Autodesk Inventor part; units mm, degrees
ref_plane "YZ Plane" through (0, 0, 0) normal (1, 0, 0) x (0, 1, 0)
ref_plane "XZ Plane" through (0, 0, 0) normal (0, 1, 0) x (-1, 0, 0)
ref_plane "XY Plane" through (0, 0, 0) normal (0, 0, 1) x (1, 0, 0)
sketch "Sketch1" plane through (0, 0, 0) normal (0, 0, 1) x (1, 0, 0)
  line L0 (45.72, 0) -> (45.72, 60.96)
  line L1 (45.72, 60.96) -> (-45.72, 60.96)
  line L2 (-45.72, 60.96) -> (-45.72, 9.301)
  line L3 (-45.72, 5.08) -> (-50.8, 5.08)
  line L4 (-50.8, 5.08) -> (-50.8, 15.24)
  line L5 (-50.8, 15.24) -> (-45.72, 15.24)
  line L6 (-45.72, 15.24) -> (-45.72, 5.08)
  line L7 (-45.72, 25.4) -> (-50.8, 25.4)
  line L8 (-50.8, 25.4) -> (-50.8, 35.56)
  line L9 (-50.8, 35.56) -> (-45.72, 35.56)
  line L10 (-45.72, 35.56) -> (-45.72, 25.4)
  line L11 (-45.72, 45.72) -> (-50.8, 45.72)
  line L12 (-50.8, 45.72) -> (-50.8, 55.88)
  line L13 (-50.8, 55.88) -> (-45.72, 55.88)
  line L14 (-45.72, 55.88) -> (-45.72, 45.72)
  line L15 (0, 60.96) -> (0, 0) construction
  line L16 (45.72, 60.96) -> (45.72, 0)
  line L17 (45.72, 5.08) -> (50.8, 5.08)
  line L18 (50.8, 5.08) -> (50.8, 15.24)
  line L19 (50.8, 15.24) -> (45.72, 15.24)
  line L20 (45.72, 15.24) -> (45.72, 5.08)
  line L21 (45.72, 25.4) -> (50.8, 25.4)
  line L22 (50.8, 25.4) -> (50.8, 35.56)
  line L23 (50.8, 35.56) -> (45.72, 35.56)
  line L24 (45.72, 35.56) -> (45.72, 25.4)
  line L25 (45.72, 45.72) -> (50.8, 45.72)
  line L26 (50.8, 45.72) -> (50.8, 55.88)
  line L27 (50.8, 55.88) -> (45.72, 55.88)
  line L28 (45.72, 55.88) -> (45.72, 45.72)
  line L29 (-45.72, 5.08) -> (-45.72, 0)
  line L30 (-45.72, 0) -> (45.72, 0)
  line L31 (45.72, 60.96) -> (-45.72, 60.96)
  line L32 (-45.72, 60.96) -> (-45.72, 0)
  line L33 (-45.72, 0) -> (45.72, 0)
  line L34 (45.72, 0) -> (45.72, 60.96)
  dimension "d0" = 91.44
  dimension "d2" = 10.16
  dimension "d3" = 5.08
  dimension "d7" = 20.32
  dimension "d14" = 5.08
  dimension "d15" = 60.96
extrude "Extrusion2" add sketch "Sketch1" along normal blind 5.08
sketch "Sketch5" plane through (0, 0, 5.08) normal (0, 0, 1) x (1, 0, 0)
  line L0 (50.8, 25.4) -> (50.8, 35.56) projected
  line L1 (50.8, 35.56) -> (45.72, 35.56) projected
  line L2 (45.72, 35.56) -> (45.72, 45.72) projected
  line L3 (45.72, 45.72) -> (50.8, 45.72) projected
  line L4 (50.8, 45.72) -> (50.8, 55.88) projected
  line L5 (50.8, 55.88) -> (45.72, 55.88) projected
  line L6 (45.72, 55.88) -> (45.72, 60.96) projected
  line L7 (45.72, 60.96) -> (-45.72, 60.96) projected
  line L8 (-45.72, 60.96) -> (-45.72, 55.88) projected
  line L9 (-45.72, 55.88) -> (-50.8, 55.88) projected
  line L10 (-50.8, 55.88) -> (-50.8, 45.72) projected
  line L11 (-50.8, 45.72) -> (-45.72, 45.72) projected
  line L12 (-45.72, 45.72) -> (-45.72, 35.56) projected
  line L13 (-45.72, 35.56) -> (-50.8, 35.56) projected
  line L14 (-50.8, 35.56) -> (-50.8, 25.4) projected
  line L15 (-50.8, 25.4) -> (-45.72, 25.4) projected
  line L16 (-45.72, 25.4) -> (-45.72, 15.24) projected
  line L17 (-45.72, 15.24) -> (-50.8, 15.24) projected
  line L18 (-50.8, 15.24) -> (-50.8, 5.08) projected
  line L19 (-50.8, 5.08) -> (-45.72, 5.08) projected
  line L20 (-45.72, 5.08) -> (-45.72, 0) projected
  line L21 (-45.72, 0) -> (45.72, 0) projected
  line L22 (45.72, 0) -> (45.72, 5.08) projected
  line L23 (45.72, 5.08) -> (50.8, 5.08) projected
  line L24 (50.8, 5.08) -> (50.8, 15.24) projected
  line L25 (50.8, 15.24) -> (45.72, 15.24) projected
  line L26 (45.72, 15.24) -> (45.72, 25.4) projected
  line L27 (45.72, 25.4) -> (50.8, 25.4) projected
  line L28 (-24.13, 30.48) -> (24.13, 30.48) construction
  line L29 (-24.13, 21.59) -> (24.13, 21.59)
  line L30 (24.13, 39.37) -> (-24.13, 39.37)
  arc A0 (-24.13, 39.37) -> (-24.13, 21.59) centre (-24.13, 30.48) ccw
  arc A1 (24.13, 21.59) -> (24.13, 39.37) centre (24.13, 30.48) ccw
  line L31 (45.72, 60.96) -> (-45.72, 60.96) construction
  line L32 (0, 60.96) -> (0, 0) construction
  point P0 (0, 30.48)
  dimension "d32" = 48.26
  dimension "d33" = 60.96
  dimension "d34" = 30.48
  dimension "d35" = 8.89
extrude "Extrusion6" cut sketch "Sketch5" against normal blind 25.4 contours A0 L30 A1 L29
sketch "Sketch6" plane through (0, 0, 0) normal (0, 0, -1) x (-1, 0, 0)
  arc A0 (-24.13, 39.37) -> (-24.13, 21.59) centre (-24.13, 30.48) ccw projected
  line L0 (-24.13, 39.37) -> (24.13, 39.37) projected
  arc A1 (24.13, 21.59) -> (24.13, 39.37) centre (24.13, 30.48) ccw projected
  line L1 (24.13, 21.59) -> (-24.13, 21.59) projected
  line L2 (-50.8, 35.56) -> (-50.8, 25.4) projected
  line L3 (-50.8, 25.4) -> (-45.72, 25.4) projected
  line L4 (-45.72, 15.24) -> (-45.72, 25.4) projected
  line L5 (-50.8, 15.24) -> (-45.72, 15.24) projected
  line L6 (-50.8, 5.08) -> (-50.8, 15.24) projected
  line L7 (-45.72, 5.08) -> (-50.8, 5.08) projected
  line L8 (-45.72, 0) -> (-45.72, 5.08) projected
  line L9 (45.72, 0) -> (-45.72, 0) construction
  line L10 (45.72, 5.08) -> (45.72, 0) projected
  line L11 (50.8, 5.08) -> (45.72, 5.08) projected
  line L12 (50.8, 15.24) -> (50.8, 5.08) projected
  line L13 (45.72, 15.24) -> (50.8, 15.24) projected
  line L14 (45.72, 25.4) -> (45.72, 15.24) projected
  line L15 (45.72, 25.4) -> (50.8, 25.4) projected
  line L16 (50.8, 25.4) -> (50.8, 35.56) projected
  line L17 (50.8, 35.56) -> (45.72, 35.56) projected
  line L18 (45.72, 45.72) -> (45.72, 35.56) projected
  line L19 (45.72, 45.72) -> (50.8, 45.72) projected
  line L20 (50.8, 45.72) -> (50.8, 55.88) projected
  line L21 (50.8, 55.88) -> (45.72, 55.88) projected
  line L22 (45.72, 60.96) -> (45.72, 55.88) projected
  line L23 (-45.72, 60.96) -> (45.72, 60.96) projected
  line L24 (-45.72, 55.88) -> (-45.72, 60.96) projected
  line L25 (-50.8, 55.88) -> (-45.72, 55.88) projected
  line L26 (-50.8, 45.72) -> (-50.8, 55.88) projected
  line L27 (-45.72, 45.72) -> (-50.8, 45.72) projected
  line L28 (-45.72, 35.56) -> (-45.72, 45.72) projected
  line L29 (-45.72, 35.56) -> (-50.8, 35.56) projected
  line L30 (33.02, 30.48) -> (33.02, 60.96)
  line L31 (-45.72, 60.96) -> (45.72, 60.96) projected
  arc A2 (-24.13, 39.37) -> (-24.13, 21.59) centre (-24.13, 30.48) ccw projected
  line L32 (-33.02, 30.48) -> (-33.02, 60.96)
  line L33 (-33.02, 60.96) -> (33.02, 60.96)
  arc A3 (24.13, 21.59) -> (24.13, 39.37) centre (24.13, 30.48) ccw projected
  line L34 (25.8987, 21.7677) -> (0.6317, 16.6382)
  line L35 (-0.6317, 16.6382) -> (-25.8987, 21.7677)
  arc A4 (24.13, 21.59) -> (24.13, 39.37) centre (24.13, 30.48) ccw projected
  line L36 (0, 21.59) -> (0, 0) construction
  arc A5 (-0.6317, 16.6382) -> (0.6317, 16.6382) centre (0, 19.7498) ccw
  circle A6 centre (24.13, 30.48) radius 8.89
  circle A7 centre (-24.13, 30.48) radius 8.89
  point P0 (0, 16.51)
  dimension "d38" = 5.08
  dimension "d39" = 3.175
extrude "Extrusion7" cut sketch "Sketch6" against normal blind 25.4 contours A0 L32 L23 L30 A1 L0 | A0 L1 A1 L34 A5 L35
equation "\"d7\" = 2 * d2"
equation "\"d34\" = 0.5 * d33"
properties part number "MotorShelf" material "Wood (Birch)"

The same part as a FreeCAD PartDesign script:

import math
import FreeCAD as App
import Part
import Sketcher

V = App.Vector
Q = App.Units.Quantity

doc = App.newDocument("Part")
body = doc.addObject("PartDesign::Body", "Body")

sketch1 = body.newObject("Sketcher::SketchObject", "Sketch")
sketch1.AttachmentSupport = (doc.getObject("XY_Plane"), [""])
sketch1.MapMode = "FlatFace"
sketch1.addGeometry([
    Part.LineSegment(V(-46, 0, 0), V(46, 0, 0)),
    Part.LineSegment(V(46, 0, 0), V(46, 5, 0)),
    Part.LineSegment(V(46, 5, 0), V(51, 5, 0)),
    Part.LineSegment(V(51, 5, 0), V(51, 15, 0)),
    Part.LineSegment(V(51, 15, 0), V(46, 15, 0)),
    Part.LineSegment(V(46, 15, 0), V(46, 25, 0)),
    Part.LineSegment(V(46, 25, 0), V(51, 25, 0)),
    Part.LineSegment(V(51, 25, 0), V(51, 36, 0)),
    Part.LineSegment(V(51, 36, 0), V(46, 36, 0)),
    Part.LineSegment(V(46, 36, 0), V(46, 46, 0)),
    Part.LineSegment(V(46, 46, 0), V(51, 46, 0)),
    Part.LineSegment(V(51, 46, 0), V(51, 56, 0)),
    Part.LineSegment(V(51, 56, 0), V(46, 56, 0)),
    Part.LineSegment(V(46, 56, 0), V(46, 61, 0)),
    Part.LineSegment(V(46, 61, 0), V(-46, 61, 0)),
    Part.LineSegment(V(-46, 61, 0), V(-46, 56, 0)),
    Part.LineSegment(V(-46, 56, 0), V(-51, 56, 0)),
    Part.LineSegment(V(-51, 56, 0), V(-51, 46, 0)),
    Part.LineSegment(V(-51, 46, 0), V(-46, 46, 0)),
    Part.LineSegment(V(-46, 46, 0), V(-46, 36, 0)),
    Part.LineSegment(V(-46, 36, 0), V(-51, 36, 0)),
    Part.LineSegment(V(-51, 36, 0), V(-51, 25, 0)),
    Part.LineSegment(V(-51, 25, 0), V(-46, 25, 0)),
    Part.LineSegment(V(-46, 25, 0), V(-46, 15, 0)),
    Part.LineSegment(V(-46, 15, 0), V(-51, 15, 0)),
    Part.LineSegment(V(-51, 15, 0), V(-51, 5, 0)),
    Part.LineSegment(V(-51, 5, 0), V(-46, 5, 0)),
    Part.LineSegment(V(-46, 5, 0), V(-46, 0, 0)),
], False)
sketch1.addConstraint([
    Sketcher.Constraint("Coincident", 0, 2, 1, 1),
    Sketcher.Constraint("Coincident", 1, 2, 2, 1),
    Sketcher.Constraint("Coincident", 2, 2, 3, 1),
    Sketcher.Constraint("Coincident", 3, 2, 4, 1),
    Sketcher.Constraint("Coincident", 4, 2, 5, 1),
    Sketcher.Constraint("Coincident", 5, 2, 6, 1),
    Sketcher.Constraint("Coincident", 6, 2, 7, 1),
    Sketcher.Constraint("Coincident", 7, 2, 8, 1),
    Sketcher.Constraint("Coincident", 8, 2, 9, 1),
    Sketcher.Constraint("Coincident", 9, 2, 10, 1),
    Sketcher.Constraint("Coincident", 10, 2, 11, 1),
    Sketcher.Constraint("Coincident", 11, 2, 12, 1),
    Sketcher.Constraint("Coincident", 12, 2, 13, 1),
    Sketcher.Constraint("Coincident", 13, 2, 14, 1),
    Sketcher.Constraint("Coincident", 14, 2, 15, 1),
    Sketcher.Constraint("Coincident", 15, 2, 16, 1),
    Sketcher.Constraint("Coincident", 16, 2, 17, 1),
    Sketcher.Constraint("Coincident", 17, 2, 18, 1),
    Sketcher.Constraint("Coincident", 18, 2, 19, 1),
    Sketcher.Constraint("Coincident", 19, 2, 20, 1),
    Sketcher.Constraint("Coincident", 20, 2, 21, 1),
    Sketcher.Constraint("Coincident", 21, 2, 22, 1),
    Sketcher.Constraint("Coincident", 22, 2, 23, 1),
    Sketcher.Constraint("Coincident", 23, 2, 24, 1),
    Sketcher.Constraint("Coincident", 24, 2, 25, 1),
    Sketcher.Constraint("Coincident", 25, 2, 26, 1),
    Sketcher.Constraint("Coincident", 26, 2, 27, 1),
    Sketcher.Constraint("Coincident", 27, 2, 0, 1),
    Sketcher.Constraint("Horizontal", 0),
    Sketcher.Constraint("Vertical", 1),
    Sketcher.Constraint("Horizontal", 2),
    Sketcher.Constraint("Vertical", 3),
    Sketcher.Constraint("Horizontal", 4),
    Sketcher.Constraint("Vertical", 5),
    Sketcher.Constraint("Horizontal", 6),
    Sketcher.Constraint("Vertical", 7),
    Sketcher.Constraint("Horizontal", 8),
    Sketcher.Constraint("Vertical", 9),
    Sketcher.Constraint("Horizontal", 10),
    Sketcher.Constraint("Vertical", 11),
    Sketcher.Constraint("Horizontal", 12),
    Sketcher.Constraint("Vertical", 13),
    Sketcher.Constraint("Horizontal", 14),
    Sketcher.Constraint("Vertical", 15),
    Sketcher.Constraint("Horizontal", 16),
    Sketcher.Constraint("Vertical", 17),
    Sketcher.Constraint("Horizontal", 18),
    Sketcher.Constraint("Vertical", 19),
    Sketcher.Constraint("Horizontal", 20),
    Sketcher.Constraint("Vertical", 21),
    Sketcher.Constraint("Horizontal", 22),
    Sketcher.Constraint("Vertical", 23),
    Sketcher.Constraint("Horizontal", 24),
    Sketcher.Constraint("Vertical", 25),
    Sketcher.Constraint("Horizontal", 26),
    Sketcher.Constraint("Vertical", 27),
    Sketcher.Constraint("Symmetric", 0, 2, 27, 2, -1, 1),
    Sketcher.Constraint("Symmetric", 12, 2, 15, 2, -2),
    Sketcher.Constraint("Symmetric", 10, 2, 17, 2, -2),
    Sketcher.Constraint("Symmetric", 8, 2, 19, 2, -2),
    Sketcher.Constraint("Symmetric", 6, 2, 21, 2, -2),
    Sketcher.Constraint("Symmetric", 4, 2, 23, 2, -2),
    Sketcher.Constraint("Symmetric", 2, 2, 25, 2, -2),
    Sketcher.Constraint("Vertical", 1, 2, 4, 2),
    Sketcher.Constraint("Vertical", 3, 2, 6, 2),
    Sketcher.Constraint("Vertical", 5, 2, 8, 2),
    Sketcher.Constraint("Vertical", 7, 2, 10, 2),
    Sketcher.Constraint("Vertical", 9, 2, 12, 2),
    Sketcher.Constraint("Equal", 26, 1),
    Sketcher.Constraint("Equal", 3, 5),
    Sketcher.Constraint("Equal", 5, 7),
    Sketcher.Constraint("Equal", 7, 9),
    Sketcher.Constraint("Equal", 9, 11),
    Sketcher.Constraint("Equal", 1, 13),
    Sketcher.Constraint("DistanceX", 0, 1, 0, 2, Q("3.6 in")),
    Sketcher.Constraint("DistanceX", 2, 1, 2, 2, Q("0.2 in")),
    Sketcher.Constraint("DistanceY", 3, 1, 3, 2, Q("0.4 in")),
])
pad1 = body.newObject("PartDesign::Pad", "Pad")
pad1.Profile = sketch1
pad1.Length = Q("0.2 in")

sketch2 = body.newObject("Sketcher::SketchObject", "Sketch001")
sketch2.AttachmentSupport = (doc.getObject("XY_Plane"), [""])
sketch2.MapMode = "FlatFace"
sketch2.AttachmentOffset = App.Placement(V(0, 0, 0.2 * 25.4), App.Rotation())
sketch2.addGeometry([
    Part.ArcOfCircle(Part.Circle(V(-24, 30, 0), V(0, 0, 1), 9), math.radians(90), math.radians(270)),
    Part.LineSegment(V(-24, 22, 0), V(24, 22, 0)),
    Part.ArcOfCircle(Part.Circle(V(24, 30, 0), V(0, 0, 1), 9), math.radians(-90), math.radians(90)),
    Part.LineSegment(V(24, 39, 0), V(-24, 39, 0)),
], False)
sketch2.addConstraint([
    Sketcher.Constraint("Tangent", 0, 2, 1, 1),
    Sketcher.Constraint("Tangent", 1, 2, 2, 1),
    Sketcher.Constraint("Tangent", 2, 2, 3, 1),
    Sketcher.Constraint("Tangent", 3, 2, 0, 1),
    Sketcher.Constraint("Horizontal", 1),
    Sketcher.Constraint("Horizontal", 3),
    Sketcher.Constraint("Radius", 0, Q("0.35 in")),
    Sketcher.Constraint("DistanceX", 1, 1, 1, 2, Q("1.9 in")),
    Sketcher.Constraint("DistanceY", -1, 1, 0, 3, Q("1.2 in")),
    Sketcher.Constraint("DistanceX", 0, 3, -1, 1, Q("0.95 in")),
])
pocket1 = body.newObject("PartDesign::Pocket", "Pocket")
pocket1.Profile = sketch2
pocket1.Length = Q("1 in")

sketch3 = body.newObject("Sketcher::SketchObject", "Sketch002")
sketch3.AttachmentSupport = (doc.getObject("XY_Plane"), [""])
sketch3.MapMode = "FlatFace"
sketch3.addGeometry([
    Part.ArcOfCircle(Part.Circle(V(24.1, 30.5, 0), V(0, 0, 1), 8.9), math.radians(0), math.radians(90)),
    Part.LineSegment(V(24.1, 39.4, 0), V(-24.1, 39.4, 0)),
    Part.ArcOfCircle(Part.Circle(V(-24.1, 30.5, 0), V(0, 0, 1), 8.9), math.radians(90), math.radians(180)),
    Part.LineSegment(V(-33, 30.5, 0), V(-33, 61, 0)),
    Part.LineSegment(V(-33, 61, 0), V(33, 61, 0)),
    Part.LineSegment(V(33, 61, 0), V(33, 30.5, 0)),
    Part.ArcOfCircle(Part.Circle(V(24.1, 30.5, 0), V(0, 0, 1), 8.9), math.radians(-90), math.radians(-78.52)),
    Part.LineSegment(V(25.9, 21.8, 0), V(0.6, 16.6, 0)),
    Part.ArcOfCircle(Part.Circle(V(0, 19.7, 0), V(0, 0, 1), 3.2), math.radians(-101), math.radians(-79)),
    Part.LineSegment(V(-0.6, 16.6, 0), V(-25.9, 21.8, 0)),
    Part.ArcOfCircle(Part.Circle(V(-24.1, 30.5, 0), V(0, 0, 1), 8.9), math.radians(-101.48), math.radians(-90)),
    Part.LineSegment(V(-24.1, 21.6, 0), V(24.1, 21.6, 0)),
], False)
sketch3.addConstraint([
    Sketcher.Constraint("Tangent", 0, 2, 1, 1),
    Sketcher.Constraint("Tangent", 1, 2, 2, 1),
    Sketcher.Constraint("Tangent", 2, 2, 3, 1),
    Sketcher.Constraint("Coincident", 3, 2, 4, 1),
    Sketcher.Constraint("Coincident", 4, 2, 5, 1),
    Sketcher.Constraint("Tangent", 5, 2, 0, 1),
    Sketcher.Constraint("Tangent", 6, 2, 7, 1),
    Sketcher.Constraint("Tangent", 7, 2, 8, 2),
    Sketcher.Constraint("Tangent", 8, 1, 9, 1),
    Sketcher.Constraint("Tangent", 9, 2, 10, 1),
    Sketcher.Constraint("Tangent", 10, 2, 11, 1),
    Sketcher.Constraint("Tangent", 11, 2, 6, 1),
    Sketcher.Constraint("Horizontal", 1),
    Sketcher.Constraint("Vertical", 3),
    Sketcher.Constraint("Horizontal", 4),
    Sketcher.Constraint("Vertical", 5),
    Sketcher.Constraint("Horizontal", 11),
    Sketcher.Constraint("Coincident", 6, 3, 0, 3),
    Sketcher.Constraint("Coincident", 10, 3, 2, 3),
    Sketcher.Constraint("Equal", 0, 2),
    Sketcher.Constraint("Equal", 2, 6),
    Sketcher.Constraint("Symmetric", 6, 2, 9, 2, -2),
    Sketcher.Constraint("Radius", 8, Q("0.125 in")),
    Sketcher.Constraint("Radius", 0, Q("0.35 in")),
    Sketcher.Constraint("DistanceX", 1, 2, 1, 1, Q("1.9 in")),
    Sketcher.Constraint("DistanceY", 3, 1, 3, 2, Q("1.2 in")),
    Sketcher.Constraint("DistanceY", -1, 1, 0, 3, Q("1.2 in")),
    Sketcher.Constraint("DistanceY", -1, 1, 6, 2, Q("0.857 in")),
])
pocket2 = body.newObject("PartDesign::Pocket", "Pocket001")
pocket2.Profile = sketch3
pocket2.Length = Q("1 in")
pocket2.Reversed = True

doc.recompute()
